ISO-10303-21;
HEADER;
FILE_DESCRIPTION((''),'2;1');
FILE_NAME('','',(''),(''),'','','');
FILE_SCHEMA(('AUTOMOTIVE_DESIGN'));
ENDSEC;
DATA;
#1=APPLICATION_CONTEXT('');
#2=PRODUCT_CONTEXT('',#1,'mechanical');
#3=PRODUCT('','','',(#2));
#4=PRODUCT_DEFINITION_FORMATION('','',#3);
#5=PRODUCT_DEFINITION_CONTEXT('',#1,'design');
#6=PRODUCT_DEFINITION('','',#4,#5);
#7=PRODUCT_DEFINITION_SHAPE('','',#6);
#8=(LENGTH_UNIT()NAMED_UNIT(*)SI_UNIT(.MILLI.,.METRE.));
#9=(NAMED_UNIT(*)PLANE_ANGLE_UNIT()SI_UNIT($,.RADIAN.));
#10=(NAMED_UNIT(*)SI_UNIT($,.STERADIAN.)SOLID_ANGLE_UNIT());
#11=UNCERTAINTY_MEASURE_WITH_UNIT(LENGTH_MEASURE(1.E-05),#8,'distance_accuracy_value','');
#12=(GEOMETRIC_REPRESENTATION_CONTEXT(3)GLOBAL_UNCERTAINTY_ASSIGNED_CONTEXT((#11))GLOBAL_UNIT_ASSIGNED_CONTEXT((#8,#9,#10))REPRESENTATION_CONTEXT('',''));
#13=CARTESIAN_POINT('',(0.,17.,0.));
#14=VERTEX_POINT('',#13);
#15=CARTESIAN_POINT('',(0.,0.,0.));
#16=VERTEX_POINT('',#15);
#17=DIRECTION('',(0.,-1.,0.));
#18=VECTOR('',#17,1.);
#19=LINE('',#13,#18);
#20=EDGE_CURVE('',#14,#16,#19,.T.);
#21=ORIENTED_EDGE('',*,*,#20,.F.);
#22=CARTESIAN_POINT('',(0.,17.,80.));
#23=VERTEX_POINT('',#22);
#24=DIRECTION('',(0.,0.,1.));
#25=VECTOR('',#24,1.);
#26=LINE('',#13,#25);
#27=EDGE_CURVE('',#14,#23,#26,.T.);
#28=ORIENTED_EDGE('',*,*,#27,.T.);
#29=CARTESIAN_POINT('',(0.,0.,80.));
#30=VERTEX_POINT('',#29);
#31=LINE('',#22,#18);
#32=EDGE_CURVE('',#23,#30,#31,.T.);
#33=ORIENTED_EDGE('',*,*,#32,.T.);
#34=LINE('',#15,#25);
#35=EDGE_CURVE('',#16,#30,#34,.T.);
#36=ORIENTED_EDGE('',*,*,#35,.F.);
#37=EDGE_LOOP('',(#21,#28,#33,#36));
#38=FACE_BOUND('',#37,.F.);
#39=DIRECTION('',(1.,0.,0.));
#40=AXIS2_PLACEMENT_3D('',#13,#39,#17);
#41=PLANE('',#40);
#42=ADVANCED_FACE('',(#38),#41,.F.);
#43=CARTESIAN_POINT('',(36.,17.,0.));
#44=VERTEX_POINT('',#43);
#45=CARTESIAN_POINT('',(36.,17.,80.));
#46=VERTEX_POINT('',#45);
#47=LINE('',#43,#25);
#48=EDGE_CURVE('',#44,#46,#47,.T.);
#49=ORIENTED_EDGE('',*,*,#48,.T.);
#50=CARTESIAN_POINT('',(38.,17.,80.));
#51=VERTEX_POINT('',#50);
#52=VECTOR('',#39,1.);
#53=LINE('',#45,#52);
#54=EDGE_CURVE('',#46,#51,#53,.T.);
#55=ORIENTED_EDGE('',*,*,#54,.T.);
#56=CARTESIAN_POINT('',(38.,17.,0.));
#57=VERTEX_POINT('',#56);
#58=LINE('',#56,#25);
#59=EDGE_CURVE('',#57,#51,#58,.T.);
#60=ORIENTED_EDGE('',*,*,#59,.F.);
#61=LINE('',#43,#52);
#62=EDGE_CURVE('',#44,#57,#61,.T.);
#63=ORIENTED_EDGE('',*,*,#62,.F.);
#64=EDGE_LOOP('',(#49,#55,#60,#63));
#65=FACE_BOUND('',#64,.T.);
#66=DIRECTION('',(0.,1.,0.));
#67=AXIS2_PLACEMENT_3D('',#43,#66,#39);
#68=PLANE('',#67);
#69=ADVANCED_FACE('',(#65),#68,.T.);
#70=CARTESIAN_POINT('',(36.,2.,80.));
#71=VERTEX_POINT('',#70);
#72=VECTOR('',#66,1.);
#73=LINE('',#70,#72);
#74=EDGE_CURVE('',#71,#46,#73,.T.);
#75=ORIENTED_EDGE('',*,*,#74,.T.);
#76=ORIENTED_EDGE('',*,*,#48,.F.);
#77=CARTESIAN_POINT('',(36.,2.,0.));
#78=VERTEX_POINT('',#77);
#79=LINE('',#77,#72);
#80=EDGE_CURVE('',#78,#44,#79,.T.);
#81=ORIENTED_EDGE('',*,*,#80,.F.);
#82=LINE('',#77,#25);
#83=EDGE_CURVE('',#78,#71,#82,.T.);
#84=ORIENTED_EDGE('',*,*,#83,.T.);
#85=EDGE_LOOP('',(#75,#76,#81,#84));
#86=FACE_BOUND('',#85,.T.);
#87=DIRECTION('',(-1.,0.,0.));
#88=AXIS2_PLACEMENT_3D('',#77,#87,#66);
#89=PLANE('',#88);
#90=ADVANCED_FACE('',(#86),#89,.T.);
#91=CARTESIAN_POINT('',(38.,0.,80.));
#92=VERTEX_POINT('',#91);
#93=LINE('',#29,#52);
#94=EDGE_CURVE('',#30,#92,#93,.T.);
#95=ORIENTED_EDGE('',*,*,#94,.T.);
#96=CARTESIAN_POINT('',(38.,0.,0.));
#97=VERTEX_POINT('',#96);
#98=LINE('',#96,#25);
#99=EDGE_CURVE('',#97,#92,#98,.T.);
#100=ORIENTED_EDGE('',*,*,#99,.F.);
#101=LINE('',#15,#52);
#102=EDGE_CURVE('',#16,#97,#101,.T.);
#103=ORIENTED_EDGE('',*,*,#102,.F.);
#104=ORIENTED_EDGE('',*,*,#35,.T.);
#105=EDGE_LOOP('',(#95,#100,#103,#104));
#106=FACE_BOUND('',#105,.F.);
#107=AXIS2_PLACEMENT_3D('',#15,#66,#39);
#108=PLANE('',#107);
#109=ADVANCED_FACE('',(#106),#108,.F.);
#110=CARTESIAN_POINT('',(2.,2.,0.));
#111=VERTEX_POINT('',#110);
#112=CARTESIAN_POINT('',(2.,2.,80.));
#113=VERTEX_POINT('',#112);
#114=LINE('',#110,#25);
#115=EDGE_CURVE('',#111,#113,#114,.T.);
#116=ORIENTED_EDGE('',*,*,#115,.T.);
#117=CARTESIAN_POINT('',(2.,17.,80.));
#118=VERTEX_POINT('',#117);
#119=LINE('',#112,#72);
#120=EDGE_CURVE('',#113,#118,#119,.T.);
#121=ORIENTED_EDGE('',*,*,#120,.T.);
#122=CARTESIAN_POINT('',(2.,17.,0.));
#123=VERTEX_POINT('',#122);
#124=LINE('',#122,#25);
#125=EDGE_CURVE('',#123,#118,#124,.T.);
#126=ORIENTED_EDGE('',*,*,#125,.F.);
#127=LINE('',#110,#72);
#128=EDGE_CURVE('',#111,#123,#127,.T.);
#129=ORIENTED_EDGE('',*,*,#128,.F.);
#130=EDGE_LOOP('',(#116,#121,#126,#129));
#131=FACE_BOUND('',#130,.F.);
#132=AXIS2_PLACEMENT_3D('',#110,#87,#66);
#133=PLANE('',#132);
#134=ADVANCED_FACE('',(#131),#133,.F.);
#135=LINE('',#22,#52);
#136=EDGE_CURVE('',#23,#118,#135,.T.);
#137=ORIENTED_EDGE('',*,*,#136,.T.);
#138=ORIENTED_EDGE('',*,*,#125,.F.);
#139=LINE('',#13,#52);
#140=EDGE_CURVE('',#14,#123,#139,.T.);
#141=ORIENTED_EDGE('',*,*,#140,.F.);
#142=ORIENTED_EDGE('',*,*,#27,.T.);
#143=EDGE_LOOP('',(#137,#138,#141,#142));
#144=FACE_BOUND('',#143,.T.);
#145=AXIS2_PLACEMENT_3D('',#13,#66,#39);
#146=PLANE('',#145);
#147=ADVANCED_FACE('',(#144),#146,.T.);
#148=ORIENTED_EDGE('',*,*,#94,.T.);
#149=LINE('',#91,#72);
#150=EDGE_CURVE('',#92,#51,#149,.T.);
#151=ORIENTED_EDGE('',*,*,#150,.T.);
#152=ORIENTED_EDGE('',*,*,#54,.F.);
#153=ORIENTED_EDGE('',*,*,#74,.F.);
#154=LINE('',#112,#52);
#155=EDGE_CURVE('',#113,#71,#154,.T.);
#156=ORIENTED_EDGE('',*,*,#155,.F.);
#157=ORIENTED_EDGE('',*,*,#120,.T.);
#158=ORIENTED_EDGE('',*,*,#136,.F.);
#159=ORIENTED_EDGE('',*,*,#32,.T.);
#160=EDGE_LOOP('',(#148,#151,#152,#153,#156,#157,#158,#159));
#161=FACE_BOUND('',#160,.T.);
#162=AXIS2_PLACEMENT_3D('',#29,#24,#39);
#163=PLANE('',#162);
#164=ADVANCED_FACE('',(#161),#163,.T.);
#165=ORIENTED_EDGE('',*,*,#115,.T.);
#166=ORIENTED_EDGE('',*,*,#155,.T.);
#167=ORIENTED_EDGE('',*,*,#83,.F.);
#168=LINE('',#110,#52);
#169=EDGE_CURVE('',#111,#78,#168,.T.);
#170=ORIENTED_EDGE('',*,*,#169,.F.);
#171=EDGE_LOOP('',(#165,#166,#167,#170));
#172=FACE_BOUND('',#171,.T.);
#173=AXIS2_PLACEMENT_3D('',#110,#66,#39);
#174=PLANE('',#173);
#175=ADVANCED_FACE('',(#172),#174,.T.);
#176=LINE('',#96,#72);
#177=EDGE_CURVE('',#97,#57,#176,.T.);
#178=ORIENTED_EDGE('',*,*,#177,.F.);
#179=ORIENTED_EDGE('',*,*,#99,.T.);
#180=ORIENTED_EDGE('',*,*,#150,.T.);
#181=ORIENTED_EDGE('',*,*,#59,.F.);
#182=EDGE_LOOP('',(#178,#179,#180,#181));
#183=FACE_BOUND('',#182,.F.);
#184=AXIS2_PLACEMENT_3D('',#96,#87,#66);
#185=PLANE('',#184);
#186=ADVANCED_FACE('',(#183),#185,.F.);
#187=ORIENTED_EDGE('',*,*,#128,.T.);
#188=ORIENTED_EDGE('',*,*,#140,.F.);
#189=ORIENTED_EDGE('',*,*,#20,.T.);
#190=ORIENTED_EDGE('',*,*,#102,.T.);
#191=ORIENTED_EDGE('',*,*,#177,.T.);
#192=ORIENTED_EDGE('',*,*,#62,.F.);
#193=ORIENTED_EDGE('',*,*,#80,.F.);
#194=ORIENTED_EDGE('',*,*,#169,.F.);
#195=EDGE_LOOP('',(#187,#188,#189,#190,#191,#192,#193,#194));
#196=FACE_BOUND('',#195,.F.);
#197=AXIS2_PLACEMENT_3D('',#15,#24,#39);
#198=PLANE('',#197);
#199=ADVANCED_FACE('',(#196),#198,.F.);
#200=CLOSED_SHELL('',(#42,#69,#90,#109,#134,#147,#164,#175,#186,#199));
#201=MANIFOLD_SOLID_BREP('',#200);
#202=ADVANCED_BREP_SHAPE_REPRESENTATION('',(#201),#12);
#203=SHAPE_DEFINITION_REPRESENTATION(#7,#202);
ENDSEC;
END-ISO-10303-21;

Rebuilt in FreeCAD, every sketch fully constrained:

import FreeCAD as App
import Part
import Sketcher
from FreeCAD import Vector


def add_polygon(sketch, points):
    """Adds a closed chain of lines whose ends are joined by coincident constraints."""
    first, n = sketch.GeometryCount, len(points)
    for a, b in zip(points, points[1:] + points[:1]):
        sketch.addGeometry(Part.LineSegment(App.Vector(*a, 0), App.Vector(*b, 0)), False)
    for i in range(n):
        sketch.addConstraint(Sketcher.Constraint("Coincident", first + i, 2, first + (i + 1) % n, 1))

doc = App.newDocument("Part")
params = doc.addObject("Spreadsheet::Sheet", "Params")
for row, (alias, value) in enumerate([
    ("sketch1_width", "34 mm"),
    ("sketch1_width2", "2 mm"),
    ("sketch1_height", "15 mm"),
    ("pad1_length", "80 mm"),
], start=1):
    params.set(f"A{row}", alias)
    params.set(f"B{row}", "=" + value)
    params.setAlias(f"B{row}", alias)

body = doc.addObject("PartDesign::Body", "Body")

sketch1 = body.newObject("Sketcher::SketchObject", "Sketch")
sketch1.AttachmentSupport = (doc.getObject("XY_Plane"), [""])
sketch1.MapMode = "FlatFace"
add_polygon(sketch1, [(36, 2), (2, 2), (2, 17), (0, 17), (0, 0), (38, 0), (38, 17), (36, 17)])
sketch1.addConstraint([
    Sketcher.Constraint("Horizontal", 0),
    Sketcher.Constraint("Vertical", 1),
    Sketcher.Constraint("Horizontal", 2),
    Sketcher.Constraint("Vertical", 3),
    Sketcher.Constraint("Horizontal", 4),
    Sketcher.Constraint("Vertical", 5),
    Sketcher.Constraint("Horizontal", 6),
    Sketcher.Constraint("Vertical", 7),
    Sketcher.Constraint("Coincident", 3, 2, -1, 1),
    Sketcher.Constraint("Horizontal", 2, 2, 5, 2),
    Sketcher.Constraint("Equal", 2, 6),
    Sketcher.Constraint("DistanceX", 0, 2, 0, 1, 34.0),
    Sketcher.Constraint("DistanceX", 2, 2, 2, 1, 2.0),
    Sketcher.Constraint("DistanceY", 1, 1, 1, 2, 15.0),
    Sketcher.Constraint("DistanceY", -1, 1, 0, 2, 2.0),
])
sketch1.setExpression("Constraints[19]", "Params.sketch1_width")
sketch1.setExpression("Constraints[20]", "Params.sketch1_width2")
sketch1.setExpression("Constraints[21]", "Params.sketch1_height")
pad1 = body.newObject("PartDesign::Pad", "Pad")
pad1.Profile = sketch1
pad1.setExpression("Length", "Params.pad1_length")

doc.recompute()
